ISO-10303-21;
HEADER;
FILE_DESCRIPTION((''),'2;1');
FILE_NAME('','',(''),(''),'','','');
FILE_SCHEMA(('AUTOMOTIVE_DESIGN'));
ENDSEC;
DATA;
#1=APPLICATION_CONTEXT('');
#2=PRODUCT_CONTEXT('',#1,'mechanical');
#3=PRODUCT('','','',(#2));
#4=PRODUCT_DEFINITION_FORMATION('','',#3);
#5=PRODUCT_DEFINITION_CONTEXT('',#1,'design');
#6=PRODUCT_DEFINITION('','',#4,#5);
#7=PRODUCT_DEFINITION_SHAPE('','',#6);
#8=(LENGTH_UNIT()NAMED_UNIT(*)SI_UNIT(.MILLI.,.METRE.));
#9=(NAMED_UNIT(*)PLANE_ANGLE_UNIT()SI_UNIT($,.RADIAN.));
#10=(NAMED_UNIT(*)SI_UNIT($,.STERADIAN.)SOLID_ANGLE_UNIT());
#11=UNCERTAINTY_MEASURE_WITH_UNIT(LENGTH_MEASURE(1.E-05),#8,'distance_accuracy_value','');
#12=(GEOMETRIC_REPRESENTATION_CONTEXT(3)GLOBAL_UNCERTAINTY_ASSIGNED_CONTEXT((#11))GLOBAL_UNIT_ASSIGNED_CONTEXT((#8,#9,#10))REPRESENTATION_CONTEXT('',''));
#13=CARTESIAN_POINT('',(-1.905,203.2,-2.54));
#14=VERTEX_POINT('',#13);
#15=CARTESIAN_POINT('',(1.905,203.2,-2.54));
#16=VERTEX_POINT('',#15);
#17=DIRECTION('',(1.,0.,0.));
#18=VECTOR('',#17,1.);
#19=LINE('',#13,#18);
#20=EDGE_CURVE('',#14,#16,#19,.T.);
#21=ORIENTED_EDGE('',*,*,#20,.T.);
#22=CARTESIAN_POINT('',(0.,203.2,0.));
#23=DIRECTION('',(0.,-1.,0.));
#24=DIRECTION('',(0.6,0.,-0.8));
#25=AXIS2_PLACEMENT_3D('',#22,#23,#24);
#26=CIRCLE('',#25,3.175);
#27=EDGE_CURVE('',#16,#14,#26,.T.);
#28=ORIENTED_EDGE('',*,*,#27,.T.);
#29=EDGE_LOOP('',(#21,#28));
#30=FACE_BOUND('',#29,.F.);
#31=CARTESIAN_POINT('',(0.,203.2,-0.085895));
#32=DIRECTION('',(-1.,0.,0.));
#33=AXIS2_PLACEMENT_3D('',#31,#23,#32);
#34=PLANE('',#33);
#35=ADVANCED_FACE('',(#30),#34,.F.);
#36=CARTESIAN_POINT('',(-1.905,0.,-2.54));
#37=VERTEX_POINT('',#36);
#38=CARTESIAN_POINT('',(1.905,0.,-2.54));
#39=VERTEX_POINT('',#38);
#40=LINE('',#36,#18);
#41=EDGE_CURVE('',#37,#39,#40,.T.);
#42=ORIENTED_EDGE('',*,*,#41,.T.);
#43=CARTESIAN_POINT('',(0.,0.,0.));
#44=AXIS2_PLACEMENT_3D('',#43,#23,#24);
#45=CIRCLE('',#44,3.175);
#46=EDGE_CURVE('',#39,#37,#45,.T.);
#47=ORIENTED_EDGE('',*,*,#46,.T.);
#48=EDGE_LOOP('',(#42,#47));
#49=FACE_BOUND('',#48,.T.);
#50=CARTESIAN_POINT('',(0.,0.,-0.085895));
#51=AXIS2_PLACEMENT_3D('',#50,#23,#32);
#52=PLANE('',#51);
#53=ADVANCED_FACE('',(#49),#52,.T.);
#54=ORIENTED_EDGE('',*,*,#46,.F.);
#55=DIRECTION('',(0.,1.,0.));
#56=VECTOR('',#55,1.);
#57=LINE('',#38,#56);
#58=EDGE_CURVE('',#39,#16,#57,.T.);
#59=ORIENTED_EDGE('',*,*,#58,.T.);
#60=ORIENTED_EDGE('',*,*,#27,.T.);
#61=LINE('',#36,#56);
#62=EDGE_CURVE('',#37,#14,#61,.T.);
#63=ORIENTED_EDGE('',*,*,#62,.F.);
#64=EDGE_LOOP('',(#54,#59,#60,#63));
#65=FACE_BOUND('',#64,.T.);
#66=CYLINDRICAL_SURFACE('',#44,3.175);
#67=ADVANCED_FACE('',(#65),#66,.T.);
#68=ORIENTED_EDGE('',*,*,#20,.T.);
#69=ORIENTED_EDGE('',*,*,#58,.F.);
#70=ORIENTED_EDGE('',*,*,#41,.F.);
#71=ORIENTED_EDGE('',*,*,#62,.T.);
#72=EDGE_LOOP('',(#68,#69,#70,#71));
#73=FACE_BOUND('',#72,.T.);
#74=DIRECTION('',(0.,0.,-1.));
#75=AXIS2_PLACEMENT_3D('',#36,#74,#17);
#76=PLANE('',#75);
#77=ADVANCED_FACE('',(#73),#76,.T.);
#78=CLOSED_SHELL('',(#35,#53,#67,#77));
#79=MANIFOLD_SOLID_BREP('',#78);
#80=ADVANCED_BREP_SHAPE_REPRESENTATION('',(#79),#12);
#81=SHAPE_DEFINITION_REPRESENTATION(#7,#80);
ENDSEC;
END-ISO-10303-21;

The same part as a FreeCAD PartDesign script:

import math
import FreeCAD as App
import Part
import Sketcher
Q = App.Units.Quantity

doc = App.newDocument("Part")
body = doc.addObject("PartDesign::Body", "Body")

# Sketch on XZ plane
sketch1 = doc.addObject("Sketcher::SketchObject", "Sketch")
body.addObject(sketch1)
sketch1.AttachmentSupport = (doc.XZ_Plane, [""])
sketch1.MapMode = "FlatFace"
sketch1.addGeometry([
    Part.LineSegment(App.Vector(1.9, -2.5, 0), App.Vector(-1.9, -2.5, 0)),
    Part.ArcOfCircle(Part.Circle(App.Vector(0, 0, 0), App.Vector(0, 0, 1), 3.2), math.radians(-53), math.radians(233)),
], False)
sketch1.addConstraint([
    Sketcher.Constraint("Coincident", 0, 1, 1, 1),
    Sketcher.Constraint("Coincident", 1, 2, 0, 2),
    Sketcher.Constraint("Horizontal", 0),
    Sketcher.Constraint("Coincident", 1, 3, -1, 1),
    Sketcher.Constraint("Radius", 1, Q("0.125 in")),
    Sketcher.Constraint("DistanceX", 0, 2, 0, 1, Q("0.15 in")),
])
pad1 = doc.addObject("PartDesign::Pad", "Pad")
body.addObject(pad1)
pad1.Profile = sketch1
pad1.Length = Q("8 in")
pad1.Reversed = True

doc.recompute()
